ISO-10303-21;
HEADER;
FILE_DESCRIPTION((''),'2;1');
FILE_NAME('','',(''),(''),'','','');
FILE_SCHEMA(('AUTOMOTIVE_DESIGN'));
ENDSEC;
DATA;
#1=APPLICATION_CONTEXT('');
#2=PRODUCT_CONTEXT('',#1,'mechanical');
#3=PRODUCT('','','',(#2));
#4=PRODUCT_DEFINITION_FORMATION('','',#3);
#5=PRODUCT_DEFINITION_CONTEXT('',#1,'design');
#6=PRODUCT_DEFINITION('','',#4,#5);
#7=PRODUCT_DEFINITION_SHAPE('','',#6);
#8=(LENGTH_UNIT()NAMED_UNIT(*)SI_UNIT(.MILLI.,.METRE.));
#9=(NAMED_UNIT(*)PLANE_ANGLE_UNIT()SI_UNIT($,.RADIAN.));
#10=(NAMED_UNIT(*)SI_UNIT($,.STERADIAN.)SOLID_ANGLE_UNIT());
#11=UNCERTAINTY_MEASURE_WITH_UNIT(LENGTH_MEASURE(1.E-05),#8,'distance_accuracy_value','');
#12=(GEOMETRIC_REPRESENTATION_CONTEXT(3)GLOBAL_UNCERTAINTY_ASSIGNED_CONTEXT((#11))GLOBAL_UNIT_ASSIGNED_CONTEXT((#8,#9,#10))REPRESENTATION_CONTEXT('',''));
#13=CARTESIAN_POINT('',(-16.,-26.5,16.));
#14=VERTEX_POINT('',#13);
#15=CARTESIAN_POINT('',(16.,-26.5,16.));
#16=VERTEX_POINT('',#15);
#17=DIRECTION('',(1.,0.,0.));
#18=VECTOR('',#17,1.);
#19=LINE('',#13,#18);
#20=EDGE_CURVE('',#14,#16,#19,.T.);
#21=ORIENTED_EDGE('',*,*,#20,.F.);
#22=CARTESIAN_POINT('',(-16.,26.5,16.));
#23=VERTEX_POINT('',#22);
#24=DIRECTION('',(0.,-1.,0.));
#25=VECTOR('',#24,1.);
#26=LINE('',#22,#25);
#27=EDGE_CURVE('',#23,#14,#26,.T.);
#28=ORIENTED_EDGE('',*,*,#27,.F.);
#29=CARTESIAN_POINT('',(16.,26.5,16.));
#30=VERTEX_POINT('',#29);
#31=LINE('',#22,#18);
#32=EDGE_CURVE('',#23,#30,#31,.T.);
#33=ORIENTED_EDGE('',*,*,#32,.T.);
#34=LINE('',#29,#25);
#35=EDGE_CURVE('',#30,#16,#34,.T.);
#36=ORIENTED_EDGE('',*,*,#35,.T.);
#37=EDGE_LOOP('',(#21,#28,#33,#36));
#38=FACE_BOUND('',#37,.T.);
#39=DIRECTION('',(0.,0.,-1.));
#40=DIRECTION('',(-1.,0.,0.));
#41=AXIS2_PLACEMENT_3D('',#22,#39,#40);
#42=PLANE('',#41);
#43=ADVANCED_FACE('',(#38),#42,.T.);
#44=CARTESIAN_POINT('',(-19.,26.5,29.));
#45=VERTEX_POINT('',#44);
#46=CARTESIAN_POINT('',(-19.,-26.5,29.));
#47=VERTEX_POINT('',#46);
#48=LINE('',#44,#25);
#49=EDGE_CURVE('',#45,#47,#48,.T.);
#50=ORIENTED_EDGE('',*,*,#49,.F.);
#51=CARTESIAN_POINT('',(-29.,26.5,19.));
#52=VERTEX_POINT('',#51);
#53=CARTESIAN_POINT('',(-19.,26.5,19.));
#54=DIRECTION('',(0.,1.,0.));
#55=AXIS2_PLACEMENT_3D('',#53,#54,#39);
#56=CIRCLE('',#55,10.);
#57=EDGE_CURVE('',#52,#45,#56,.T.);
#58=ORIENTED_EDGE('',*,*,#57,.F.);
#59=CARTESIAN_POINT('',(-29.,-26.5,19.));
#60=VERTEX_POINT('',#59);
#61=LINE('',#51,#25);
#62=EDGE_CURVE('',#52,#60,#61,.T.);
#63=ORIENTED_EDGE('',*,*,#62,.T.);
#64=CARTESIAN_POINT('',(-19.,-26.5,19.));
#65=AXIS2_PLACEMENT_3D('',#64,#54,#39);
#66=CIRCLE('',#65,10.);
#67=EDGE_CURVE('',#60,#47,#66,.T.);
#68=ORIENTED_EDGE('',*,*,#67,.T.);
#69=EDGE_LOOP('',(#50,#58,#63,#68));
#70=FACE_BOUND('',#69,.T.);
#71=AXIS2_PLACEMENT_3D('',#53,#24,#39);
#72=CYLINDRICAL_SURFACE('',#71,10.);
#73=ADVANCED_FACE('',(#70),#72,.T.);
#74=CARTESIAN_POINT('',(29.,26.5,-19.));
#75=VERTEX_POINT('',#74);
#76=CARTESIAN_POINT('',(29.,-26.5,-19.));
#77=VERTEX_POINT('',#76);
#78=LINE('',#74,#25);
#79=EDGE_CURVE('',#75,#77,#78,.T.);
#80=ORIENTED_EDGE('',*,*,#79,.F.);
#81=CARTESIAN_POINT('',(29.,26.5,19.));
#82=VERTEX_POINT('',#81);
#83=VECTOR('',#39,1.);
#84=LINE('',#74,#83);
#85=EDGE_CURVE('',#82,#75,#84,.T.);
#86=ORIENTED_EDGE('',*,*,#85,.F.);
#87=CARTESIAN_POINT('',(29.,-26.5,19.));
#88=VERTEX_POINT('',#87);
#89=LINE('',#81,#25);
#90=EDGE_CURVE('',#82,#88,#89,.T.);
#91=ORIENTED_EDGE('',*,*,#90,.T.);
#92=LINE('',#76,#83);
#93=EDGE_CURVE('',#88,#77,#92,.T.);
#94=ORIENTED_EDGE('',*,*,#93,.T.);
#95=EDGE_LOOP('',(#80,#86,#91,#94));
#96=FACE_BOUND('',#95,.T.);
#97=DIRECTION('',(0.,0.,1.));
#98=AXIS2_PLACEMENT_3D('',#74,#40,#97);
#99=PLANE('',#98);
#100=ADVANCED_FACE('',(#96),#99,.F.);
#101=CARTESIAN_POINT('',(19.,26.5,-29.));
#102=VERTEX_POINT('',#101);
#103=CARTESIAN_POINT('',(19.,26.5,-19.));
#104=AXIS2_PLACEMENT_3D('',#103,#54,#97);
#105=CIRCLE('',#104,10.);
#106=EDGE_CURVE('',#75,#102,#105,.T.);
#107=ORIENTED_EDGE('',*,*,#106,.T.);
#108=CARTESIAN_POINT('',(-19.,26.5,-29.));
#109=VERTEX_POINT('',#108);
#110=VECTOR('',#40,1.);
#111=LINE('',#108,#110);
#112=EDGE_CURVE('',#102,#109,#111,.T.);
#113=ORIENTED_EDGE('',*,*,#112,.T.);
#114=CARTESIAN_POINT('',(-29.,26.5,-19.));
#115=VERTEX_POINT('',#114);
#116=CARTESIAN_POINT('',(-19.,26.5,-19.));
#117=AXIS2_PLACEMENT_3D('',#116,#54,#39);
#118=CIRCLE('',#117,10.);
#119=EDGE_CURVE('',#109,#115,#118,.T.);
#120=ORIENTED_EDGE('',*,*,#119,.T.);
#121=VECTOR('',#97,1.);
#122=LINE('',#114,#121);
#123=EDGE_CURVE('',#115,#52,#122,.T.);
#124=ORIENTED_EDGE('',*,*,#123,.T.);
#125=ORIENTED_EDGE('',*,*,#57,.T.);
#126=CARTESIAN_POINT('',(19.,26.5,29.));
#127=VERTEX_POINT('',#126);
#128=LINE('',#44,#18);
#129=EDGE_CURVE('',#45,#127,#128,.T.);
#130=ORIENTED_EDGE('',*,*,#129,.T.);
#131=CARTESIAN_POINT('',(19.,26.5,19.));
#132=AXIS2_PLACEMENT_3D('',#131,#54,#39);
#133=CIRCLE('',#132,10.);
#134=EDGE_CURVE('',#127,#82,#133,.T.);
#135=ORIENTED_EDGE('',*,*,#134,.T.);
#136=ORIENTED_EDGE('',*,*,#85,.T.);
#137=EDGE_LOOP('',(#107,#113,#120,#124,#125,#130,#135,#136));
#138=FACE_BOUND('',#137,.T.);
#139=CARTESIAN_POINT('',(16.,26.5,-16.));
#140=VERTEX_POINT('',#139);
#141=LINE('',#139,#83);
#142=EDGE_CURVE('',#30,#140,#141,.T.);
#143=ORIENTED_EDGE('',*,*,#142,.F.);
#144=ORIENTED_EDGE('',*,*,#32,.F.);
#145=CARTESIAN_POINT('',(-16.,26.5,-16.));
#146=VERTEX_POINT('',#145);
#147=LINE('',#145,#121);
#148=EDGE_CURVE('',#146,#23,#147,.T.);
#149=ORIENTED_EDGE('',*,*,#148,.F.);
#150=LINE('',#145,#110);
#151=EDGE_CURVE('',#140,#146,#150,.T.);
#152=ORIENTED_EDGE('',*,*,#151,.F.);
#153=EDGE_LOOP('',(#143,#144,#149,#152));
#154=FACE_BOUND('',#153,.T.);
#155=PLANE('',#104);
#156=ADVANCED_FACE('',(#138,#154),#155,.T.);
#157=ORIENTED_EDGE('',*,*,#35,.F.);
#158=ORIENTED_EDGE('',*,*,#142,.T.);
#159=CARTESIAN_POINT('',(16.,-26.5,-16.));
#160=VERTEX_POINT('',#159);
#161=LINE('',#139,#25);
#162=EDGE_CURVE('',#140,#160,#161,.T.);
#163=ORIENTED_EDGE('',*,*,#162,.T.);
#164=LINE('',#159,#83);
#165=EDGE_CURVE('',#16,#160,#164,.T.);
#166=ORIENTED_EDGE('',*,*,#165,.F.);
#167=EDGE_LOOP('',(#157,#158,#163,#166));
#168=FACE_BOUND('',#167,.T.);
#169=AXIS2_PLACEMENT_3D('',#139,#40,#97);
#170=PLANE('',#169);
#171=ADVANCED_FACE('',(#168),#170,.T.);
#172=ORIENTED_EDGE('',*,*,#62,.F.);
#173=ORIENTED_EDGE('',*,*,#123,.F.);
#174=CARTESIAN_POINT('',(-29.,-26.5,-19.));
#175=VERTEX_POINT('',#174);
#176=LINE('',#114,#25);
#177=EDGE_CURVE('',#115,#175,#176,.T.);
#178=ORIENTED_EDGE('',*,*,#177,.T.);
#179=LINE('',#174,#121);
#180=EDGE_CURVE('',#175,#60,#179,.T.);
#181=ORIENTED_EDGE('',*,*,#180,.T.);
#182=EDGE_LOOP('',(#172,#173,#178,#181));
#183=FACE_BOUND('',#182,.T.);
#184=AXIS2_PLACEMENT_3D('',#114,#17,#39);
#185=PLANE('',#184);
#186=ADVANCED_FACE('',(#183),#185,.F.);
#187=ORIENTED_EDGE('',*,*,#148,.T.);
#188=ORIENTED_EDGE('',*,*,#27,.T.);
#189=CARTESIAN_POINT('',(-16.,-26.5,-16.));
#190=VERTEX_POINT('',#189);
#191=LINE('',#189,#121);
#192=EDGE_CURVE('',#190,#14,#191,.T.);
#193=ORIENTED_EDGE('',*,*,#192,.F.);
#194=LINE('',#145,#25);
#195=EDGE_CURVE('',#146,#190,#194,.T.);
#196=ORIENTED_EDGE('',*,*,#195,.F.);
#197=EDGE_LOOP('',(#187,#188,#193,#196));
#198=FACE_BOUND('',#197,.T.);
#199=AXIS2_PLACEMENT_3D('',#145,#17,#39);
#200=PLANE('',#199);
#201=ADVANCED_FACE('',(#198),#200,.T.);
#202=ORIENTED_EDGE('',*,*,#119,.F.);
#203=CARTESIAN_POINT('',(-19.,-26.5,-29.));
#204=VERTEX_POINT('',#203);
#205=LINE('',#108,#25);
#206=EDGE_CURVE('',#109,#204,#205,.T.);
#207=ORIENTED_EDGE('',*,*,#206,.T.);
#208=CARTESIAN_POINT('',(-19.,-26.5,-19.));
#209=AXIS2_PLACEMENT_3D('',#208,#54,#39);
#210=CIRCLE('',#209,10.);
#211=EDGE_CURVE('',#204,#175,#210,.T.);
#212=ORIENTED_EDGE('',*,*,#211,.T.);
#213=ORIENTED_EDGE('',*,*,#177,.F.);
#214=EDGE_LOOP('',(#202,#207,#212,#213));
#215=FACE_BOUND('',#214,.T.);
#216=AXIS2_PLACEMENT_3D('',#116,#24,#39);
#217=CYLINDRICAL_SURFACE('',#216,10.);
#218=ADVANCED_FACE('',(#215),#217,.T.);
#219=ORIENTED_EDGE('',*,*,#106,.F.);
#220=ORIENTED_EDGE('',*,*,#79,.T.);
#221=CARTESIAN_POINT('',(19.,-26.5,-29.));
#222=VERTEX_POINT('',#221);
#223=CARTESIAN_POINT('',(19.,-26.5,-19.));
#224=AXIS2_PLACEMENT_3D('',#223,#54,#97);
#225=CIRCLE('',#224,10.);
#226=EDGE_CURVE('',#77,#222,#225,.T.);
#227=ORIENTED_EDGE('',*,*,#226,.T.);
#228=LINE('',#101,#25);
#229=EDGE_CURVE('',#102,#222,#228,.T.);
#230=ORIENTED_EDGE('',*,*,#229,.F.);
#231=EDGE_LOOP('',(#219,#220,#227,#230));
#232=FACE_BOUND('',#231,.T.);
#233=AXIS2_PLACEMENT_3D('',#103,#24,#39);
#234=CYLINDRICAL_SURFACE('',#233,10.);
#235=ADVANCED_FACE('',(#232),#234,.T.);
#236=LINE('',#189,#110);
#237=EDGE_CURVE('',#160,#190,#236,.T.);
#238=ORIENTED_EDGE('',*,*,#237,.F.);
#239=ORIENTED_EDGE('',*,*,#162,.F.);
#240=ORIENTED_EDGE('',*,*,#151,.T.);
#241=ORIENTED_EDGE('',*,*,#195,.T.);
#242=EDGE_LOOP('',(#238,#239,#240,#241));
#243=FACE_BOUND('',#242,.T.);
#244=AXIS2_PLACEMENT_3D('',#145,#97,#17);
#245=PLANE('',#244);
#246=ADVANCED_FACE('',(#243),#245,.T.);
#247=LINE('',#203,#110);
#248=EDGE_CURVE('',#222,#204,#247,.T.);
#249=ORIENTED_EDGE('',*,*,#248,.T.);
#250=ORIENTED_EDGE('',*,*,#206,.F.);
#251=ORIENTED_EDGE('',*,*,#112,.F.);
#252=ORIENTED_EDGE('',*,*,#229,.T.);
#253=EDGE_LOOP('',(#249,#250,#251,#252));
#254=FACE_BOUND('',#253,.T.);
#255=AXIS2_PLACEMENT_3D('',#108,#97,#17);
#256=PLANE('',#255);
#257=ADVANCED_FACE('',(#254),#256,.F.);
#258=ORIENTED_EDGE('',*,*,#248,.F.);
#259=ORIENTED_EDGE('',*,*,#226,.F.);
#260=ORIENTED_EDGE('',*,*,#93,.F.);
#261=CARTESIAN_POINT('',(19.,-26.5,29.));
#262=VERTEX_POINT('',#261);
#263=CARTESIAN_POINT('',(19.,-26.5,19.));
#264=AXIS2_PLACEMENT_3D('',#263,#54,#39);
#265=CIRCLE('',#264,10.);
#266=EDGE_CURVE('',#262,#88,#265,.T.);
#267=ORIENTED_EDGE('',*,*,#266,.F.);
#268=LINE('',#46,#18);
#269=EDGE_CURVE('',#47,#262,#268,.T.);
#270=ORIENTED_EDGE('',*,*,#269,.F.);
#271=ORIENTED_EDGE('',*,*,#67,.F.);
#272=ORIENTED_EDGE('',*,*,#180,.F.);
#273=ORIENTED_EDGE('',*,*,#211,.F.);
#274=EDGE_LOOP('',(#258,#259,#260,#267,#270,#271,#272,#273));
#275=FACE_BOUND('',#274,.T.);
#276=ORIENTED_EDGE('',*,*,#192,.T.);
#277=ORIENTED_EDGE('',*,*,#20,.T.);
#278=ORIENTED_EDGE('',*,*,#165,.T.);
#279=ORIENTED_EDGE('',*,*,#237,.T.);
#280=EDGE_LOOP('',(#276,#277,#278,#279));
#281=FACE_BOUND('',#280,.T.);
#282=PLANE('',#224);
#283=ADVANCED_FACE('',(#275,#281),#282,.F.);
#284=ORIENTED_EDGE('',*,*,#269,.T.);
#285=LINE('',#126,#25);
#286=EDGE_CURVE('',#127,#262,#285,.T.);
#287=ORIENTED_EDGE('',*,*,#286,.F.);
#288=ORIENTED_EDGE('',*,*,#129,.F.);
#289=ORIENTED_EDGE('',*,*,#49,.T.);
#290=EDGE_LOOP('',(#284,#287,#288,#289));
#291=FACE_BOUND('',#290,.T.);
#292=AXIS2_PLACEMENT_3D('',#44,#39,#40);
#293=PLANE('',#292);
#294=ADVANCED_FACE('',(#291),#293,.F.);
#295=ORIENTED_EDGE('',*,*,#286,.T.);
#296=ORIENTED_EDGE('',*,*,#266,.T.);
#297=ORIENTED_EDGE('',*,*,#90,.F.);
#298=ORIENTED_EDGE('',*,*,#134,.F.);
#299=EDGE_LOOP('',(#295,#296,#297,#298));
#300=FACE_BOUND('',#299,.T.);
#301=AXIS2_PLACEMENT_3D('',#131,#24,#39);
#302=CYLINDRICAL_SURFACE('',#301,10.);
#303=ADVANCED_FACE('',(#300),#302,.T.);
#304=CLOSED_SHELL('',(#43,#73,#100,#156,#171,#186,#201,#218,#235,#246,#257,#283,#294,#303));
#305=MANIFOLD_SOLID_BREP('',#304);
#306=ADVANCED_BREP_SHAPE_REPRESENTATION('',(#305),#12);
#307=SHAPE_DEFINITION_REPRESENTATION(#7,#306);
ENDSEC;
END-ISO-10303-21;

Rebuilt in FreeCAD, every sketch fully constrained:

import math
import FreeCAD as App
import Part
import Sketcher

V = App.Vector
Q = App.Units.Quantity

doc = App.newDocument("Part")
params = doc.addObject("Spreadsheet::Sheet", "Params")
for row, (alias, value) in enumerate([
    ("sketch1_radius", "10 mm"),
    ("sketch1_width", "38 mm"),
    ("sketch1_width2", "32 mm"),
    ("pad1_length", "53 mm"),
], start=1):
    params.set(f"A{row}", alias)
    params.set(f"B{row}", "=" + value)
    params.setAlias(f"B{row}", alias)

body = doc.addObject("PartDesign::Body", "Body")

sketch1 = body.newObject("Sketcher::SketchObject", "Sketch")
sketch1.AttachmentSupport = (doc.getObject("XZ_Plane"), [""])
sketch1.MapMode = "FlatFace"
sketch1.addGeometry([
    Part.LineSegment(V(-29, -19, 0), V(-29, 19, 0)),
    Part.ArcOfCircle(Part.Circle(V(-19, 19, 0), V(0, 0, 1), 10), math.radians(90), math.radians(180)),
    Part.LineSegment(V(-19, 29, 0), V(19, 29, 0)),
    Part.ArcOfCircle(Part.Circle(V(19, 19, 0), V(0, 0, 1), 10), math.radians(0), math.radians(90)),
    Part.LineSegment(V(29, 19, 0), V(29, -19, 0)),
    Part.ArcOfCircle(Part.Circle(V(19, -19, 0), V(0, 0, 1), 10), math.radians(-90), math.radians(0)),
    Part.LineSegment(V(19, -29, 0), V(-19, -29, 0)),
    Part.ArcOfCircle(Part.Circle(V(-19, -19, 0), V(0, 0, 1), 10), math.radians(180), math.radians(270)),
    Part.LineSegment(V(16, 16, 0), V(-16, 16, 0)),
    Part.LineSegment(V(-16, 16, 0), V(-16, -16, 0)),
    Part.LineSegment(V(-16, -16, 0), V(16, -16, 0)),
    Part.LineSegment(V(16, -16, 0), V(16, 16, 0)),
], False)
sketch1.addConstraint([
    Sketcher.Constraint("Tangent", 0, 2, 1, 2),
    Sketcher.Constraint("Tangent", 1, 1, 2, 1),
    Sketcher.Constraint("Tangent", 2, 2, 3, 2),
    Sketcher.Constraint("Tangent", 3, 1, 4, 1),
    Sketcher.Constraint("Tangent", 4, 2, 5, 2),
    Sketcher.Constraint("Tangent", 5, 1, 6, 1),
    Sketcher.Constraint("Tangent", 6, 2, 7, 2),
    Sketcher.Constraint("Tangent", 7, 1, 0, 1),
    Sketcher.Constraint("Coincident", 8, 2, 9, 1),
    Sketcher.Constraint("Coincident", 9, 2, 10, 1),
    Sketcher.Constraint("Coincident", 10, 2, 11, 1),
    Sketcher.Constraint("Coincident", 11, 2, 8, 1),
    Sketcher.Constraint("Vertical", 0),
    Sketcher.Constraint("Horizontal", 2),
    Sketcher.Constraint("Vertical", 4),
    Sketcher.Constraint("Horizontal", 6),
    Sketcher.Constraint("Horizontal", 8),
    Sketcher.Constraint("Vertical", 9),
    Sketcher.Constraint("Horizontal", 10),
    Sketcher.Constraint("Vertical", 11),
    Sketcher.Constraint("Equal", 1, 3),
    Sketcher.Constraint("Equal", 3, 5),
    Sketcher.Constraint("Equal", 5, 7),
    Sketcher.Constraint("Symmetric", 1, 3, 5, 3, -1, 1),
    Sketcher.Constraint("Symmetric", 8, 2, 10, 2, -1, 1),
    Sketcher.Constraint("Equal", 6, 0),
    Sketcher.Constraint("Equal", 10, 9),
    Sketcher.Constraint("Radius", 1, Q("10 mm")),
    Sketcher.Constraint("DistanceX", 2, 1, 2, 2, Q("38 mm")),
    Sketcher.Constraint("DistanceX", 8, 2, 8, 1, Q("32 mm")),
])
sketch1.setExpression("Constraints[27]", "Params.sketch1_radius")
sketch1.setExpression("Constraints[28]", "Params.sketch1_width")
sketch1.setExpression("Constraints[29]", "Params.sketch1_width2")
pad1 = body.newObject("PartDesign::Pad", "Pad")
pad1.Profile = sketch1
pad1.setExpression("Length", "Params.pad1_length")
pad1.Midplane = True

doc.recompute()
